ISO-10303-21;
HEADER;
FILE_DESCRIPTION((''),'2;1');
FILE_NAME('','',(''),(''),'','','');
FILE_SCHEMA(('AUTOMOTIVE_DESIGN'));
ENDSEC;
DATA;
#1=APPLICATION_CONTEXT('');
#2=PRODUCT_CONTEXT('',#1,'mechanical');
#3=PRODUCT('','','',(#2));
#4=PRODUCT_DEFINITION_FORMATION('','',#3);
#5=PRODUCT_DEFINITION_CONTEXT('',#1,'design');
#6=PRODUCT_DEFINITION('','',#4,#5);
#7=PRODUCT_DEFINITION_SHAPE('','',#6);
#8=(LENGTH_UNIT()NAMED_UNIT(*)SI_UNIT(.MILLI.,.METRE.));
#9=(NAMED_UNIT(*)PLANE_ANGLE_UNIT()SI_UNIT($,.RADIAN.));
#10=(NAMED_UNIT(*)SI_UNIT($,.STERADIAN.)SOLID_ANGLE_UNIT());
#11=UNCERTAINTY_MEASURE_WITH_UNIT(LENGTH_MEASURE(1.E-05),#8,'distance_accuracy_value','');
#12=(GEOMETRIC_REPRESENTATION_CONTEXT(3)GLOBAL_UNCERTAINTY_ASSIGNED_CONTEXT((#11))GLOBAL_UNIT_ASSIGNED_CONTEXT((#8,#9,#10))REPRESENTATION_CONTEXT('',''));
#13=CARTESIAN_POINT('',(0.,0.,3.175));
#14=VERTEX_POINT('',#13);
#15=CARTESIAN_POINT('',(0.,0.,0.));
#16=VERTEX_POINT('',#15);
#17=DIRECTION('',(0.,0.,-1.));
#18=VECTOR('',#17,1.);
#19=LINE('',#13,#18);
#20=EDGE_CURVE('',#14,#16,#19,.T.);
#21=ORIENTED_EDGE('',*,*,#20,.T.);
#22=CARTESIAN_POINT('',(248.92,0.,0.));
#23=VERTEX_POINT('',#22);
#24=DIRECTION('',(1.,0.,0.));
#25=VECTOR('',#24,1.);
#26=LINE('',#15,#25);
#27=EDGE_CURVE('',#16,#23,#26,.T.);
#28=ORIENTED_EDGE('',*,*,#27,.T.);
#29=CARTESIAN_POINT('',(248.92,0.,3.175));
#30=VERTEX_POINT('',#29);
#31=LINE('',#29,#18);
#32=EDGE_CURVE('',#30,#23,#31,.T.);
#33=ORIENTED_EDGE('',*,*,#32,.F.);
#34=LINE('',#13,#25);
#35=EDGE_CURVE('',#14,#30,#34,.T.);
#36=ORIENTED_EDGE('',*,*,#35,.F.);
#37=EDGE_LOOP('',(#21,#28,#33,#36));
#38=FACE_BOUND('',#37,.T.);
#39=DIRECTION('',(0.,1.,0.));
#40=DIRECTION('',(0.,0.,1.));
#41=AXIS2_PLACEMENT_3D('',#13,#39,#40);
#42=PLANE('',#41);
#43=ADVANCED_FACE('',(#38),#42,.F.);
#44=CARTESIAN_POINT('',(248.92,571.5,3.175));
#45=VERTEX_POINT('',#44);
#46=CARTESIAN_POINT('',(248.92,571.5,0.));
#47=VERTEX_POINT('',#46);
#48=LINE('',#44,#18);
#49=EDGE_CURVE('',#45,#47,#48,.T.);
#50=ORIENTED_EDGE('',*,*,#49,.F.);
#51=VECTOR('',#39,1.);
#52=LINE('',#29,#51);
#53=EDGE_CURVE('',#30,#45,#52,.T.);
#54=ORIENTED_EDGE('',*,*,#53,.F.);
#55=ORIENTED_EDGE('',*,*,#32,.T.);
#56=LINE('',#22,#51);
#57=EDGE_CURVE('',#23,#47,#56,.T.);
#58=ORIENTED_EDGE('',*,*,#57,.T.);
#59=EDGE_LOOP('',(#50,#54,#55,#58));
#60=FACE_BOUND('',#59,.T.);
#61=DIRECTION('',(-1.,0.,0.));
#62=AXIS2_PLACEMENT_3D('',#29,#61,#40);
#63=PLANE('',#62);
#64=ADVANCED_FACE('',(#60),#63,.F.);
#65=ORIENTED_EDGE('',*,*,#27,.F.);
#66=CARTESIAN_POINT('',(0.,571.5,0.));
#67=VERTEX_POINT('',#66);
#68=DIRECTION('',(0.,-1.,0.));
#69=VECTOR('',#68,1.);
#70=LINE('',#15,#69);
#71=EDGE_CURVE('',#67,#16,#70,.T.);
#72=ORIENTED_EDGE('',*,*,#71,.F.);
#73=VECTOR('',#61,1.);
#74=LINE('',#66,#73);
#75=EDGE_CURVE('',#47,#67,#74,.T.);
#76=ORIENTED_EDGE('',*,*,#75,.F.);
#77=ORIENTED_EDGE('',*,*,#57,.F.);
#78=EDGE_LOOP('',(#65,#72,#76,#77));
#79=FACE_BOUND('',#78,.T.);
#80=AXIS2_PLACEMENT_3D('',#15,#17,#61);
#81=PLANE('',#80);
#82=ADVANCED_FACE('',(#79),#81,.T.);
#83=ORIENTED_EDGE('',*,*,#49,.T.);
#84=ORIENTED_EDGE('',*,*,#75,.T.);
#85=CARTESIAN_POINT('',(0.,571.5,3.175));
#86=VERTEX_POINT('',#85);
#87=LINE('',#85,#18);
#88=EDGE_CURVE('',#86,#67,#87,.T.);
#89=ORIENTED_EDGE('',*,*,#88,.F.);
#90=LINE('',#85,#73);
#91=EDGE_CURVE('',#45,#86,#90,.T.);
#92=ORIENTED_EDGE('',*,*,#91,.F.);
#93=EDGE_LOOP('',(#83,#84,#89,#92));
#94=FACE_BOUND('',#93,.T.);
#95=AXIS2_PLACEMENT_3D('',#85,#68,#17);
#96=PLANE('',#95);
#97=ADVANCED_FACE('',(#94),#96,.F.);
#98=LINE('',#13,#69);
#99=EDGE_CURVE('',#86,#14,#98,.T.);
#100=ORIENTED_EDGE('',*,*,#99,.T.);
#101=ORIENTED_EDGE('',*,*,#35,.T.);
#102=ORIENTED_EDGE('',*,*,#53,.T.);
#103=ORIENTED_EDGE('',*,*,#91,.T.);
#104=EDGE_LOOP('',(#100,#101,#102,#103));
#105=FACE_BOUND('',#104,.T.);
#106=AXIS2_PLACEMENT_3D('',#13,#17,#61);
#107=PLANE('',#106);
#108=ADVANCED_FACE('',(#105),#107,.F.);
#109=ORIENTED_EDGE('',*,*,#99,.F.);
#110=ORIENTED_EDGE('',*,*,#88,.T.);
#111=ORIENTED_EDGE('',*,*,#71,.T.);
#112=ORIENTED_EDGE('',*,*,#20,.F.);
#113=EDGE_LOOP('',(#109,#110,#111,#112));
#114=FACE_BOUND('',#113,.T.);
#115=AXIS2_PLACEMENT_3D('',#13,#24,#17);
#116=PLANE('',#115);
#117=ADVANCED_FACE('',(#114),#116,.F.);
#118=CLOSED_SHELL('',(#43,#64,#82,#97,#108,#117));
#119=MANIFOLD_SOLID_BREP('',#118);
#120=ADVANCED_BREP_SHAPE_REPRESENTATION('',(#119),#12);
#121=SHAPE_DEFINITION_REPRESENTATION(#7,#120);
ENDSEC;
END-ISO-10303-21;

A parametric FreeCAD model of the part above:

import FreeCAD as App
import Part
import Sketcher

V = App.Vector
Q = App.Units.Quantity

doc = App.newDocument("Part")
body = doc.addObject("PartDesign::Body", "Body")

# Sketch on XY plane
sketch1 = body.newObject("Sketcher::SketchObject", "Sketch")
sketch1.AttachmentSupport = (doc.getObject("XY_Plane"), [""])
sketch1.MapMode = "FlatFace"
sketch1.addGeometry(Part.LineSegment(V(0, 572, 0), V(0, 0, 0)), False)
sketch1.addGeometry(Part.LineSegment(V(0, 0, 0), V(249, 0, 0)), False)
sketch1.addGeometry(Part.LineSegment(V(249, 0, 0), V(249, 572, 0)), False)
sketch1.addGeometry(Part.LineSegment(V(249, 572, 0), V(0, 572, 0)), False)
sketch1.addConstraint(Sketcher.Constraint("Coincident", 0, 2, 1, 1))
sketch1.addConstraint(Sketcher.Constraint("Coincident", 1, 2, 2, 1))
sketch1.addConstraint(Sketcher.Constraint("Coincident", 2, 2, 3, 1))
sketch1.addConstraint(Sketcher.Constraint("Coincident", 3, 2, 0, 1))
sketch1.addConstraint(Sketcher.Constraint("Vertical", 0))
sketch1.addConstraint(Sketcher.Constraint("Horizontal", 1))
sketch1.addConstraint(Sketcher.Constraint("Vertical", 2))
sketch1.addConstraint(Sketcher.Constraint("Horizontal", 3))
sketch1.addConstraint(Sketcher.Constraint("Coincident", 0, 2, -1, 1))
sketch1.addConstraint(Sketcher.Constraint("DistanceX", 1, 1, 1, 2, Q("9.8 in")))
sketch1.addConstraint(Sketcher.Constraint("DistanceY", 0, 2, 0, 1, Q("22.5 in")))
pad1 = body.newObject("PartDesign::Pad", "Pad")
pad1.Profile = sketch1
pad1.Length = Q("0.125 in")

doc.recompute()
